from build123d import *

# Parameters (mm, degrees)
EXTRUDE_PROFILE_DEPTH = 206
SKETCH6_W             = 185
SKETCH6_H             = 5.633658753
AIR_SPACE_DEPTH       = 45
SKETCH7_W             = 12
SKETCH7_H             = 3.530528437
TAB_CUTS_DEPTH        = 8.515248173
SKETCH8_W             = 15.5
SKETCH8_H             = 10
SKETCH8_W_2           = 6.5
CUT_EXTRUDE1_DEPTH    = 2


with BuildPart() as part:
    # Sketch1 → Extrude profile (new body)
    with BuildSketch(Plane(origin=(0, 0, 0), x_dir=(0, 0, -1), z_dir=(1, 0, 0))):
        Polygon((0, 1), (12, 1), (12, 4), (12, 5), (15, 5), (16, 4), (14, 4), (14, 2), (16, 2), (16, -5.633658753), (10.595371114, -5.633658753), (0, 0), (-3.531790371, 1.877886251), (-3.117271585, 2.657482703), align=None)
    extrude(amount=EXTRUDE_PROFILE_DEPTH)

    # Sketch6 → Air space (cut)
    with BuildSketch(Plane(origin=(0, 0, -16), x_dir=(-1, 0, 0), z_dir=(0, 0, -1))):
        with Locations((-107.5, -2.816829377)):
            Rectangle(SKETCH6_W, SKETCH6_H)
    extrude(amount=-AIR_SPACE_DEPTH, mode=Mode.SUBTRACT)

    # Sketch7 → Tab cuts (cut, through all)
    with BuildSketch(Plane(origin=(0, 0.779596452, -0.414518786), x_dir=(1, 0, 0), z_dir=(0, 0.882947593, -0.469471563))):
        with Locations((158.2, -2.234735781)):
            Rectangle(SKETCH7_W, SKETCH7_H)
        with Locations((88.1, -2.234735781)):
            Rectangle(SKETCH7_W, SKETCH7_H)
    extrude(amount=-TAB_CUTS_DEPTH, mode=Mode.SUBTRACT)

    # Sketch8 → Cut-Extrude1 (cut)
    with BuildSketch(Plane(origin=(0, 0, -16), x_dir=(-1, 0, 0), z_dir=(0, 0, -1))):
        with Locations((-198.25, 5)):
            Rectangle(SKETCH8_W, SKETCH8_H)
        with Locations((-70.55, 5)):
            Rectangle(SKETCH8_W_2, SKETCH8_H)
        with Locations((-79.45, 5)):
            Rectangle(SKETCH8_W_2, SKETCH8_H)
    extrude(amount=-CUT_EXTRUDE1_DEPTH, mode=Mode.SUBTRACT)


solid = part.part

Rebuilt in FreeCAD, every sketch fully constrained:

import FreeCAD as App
import Part
import Sketcher

V = App.Vector
Q = App.Units.Quantity

doc = App.newDocument("Part")
body = doc.addObject("PartDesign::Body", "Body")

# Sketch on YZ plane
sketch1 = doc.addObject("Sketcher::SketchObject", "Sketch")
body.addObject(sketch1)
sketch1.AttachmentSupport = (doc.YZ_Plane, [""])
sketch1.MapMode = "FlatFace"
sketch1.addGeometry([
    Part.LineSegment(V(1, -12, 0), V(1, 0, 0)),  # 0
    Part.LineSegment(V(1, 0, 0), V(2.7, 3.1, 0)),  # 1
    Part.LineSegment(V(2.7, 3.1, 0), V(1.9, 3.5, 0)),  # 2
    Part.LineSegment(V(1.9, 3.5, 0), V(0, 0, 0)),  # 3
    Part.LineSegment(V(0, 0, 0), V(-5.6, -10.6, 0)),  # 4
    Part.LineSegment(V(-5.6, -10.6, 0), V(-5.6, -16, 0)),  # 5
    Part.LineSegment(V(-5.6, -16, 0), V(2, -16, 0)),  # 6
    Part.LineSegment(V(2, -16, 0), V(2, -14, 0)),  # 7
    Part.LineSegment(V(2, -14, 0), V(4, -14, 0)),  # 8
    Part.LineSegment(V(4, -14, 0), V(4, -16, 0)),  # 9
    Part.LineSegment(V(4, -16, 0), V(5, -15, 0)),  # 10
    Part.LineSegment(V(5, -15, 0), V(5, -12, 0)),  # 11
    Part.LineSegment(V(5, -12, 0), V(1, -12, 0)),  # 12
], False)
sketch1.addConstraint([
    Sketcher.Constraint("Coincident", 0, 2, 1, 1),
    Sketcher.Constraint("Coincident", 1, 2, 2, 1),
    Sketcher.Constraint("Coincident", 2, 2, 3, 1),
    Sketcher.Constraint("Coincident", 3, 2, 4, 1),
    Sketcher.Constraint("Coincident", 4, 2, 5, 1),
    Sketcher.Constraint("Coincident", 5, 2, 6, 1),
    Sketcher.Constraint("Coincident", 6, 2, 7, 1),
    Sketcher.Constraint("Coincident", 7, 2, 8, 1),
    Sketcher.Constraint("Coincident", 8, 2, 9, 1),
    Sketcher.Constraint("Coincident", 9, 2, 10, 1),
    Sketcher.Constraint("Coincident", 10, 2, 11, 1),
    Sketcher.Constraint("Coincident", 11, 2, 12, 1),
    Sketcher.Constraint("Coincident", 12, 2, 0, 1),
    Sketcher.Constraint("Vertical", 0),
    Sketcher.Constraint("Vertical", 5),
    Sketcher.Constraint("Horizontal", 6),
    Sketcher.Constraint("Vertical", 7),
    Sketcher.Constraint("Horizontal", 8),
    Sketcher.Constraint("Vertical", 9),
    Sketcher.Constraint("Vertical", 11),
    Sketcher.Constraint("Horizontal", 12),
    Sketcher.Constraint("Coincident", 3, 2, -1, 1),
    Sketcher.Constraint("PointOnObject", 0, 2, -1),
    Sketcher.Constraint("Perpendicular", 1, 2),
    Sketcher.Constraint("Perpendicular", 2, 3),
    Sketcher.Constraint("Parallel", 3, 4),
    Sketcher.Constraint("Horizontal", 6, 2, 9, 2),
    Sketcher.Constraint("Equal", 8, 7),
    Sketcher.Constraint("DistanceX", 8, 1, 8, 2, Q("2 mm")),
    Sketcher.Constraint("DistanceX", 12, 2, 12, 1, Q("4 mm")),
    Sketcher.Constraint("DistanceY", 0, 1, 0, 2, Q("12 mm")),
    Sketcher.Constraint("DistanceY", 11, 1, 11, 2, Q("3 mm")),
    Sketcher.Constraint("Angle", 1, Q("62 deg")),
    Sketcher.Constraint("Angle", 10, Q("45 deg")),
    Sketcher.Constraint("Distance", 3, Q("4 mm")),
    Sketcher.Constraint("Distance", 4, Q("12 mm")),
    Sketcher.Constraint("DistanceX", -1, 1, 0, 2, Q("1 mm")),
    Sketcher.Constraint("DistanceY", 5, 2, -1, 1, Q("16 mm")),
])
pad1 = doc.addObject("PartDesign::Pad", "Pad")
body.addObject(pad1)
pad1.Profile = sketch1
pad1.Length = 206

# Sketch on XY plane
sketch2 = doc.addObject("Sketcher::SketchObject", "Sketch001")
body.addObject(sketch2)
sketch2.AttachmentSupport = (doc.XY_Plane, [""])
sketch2.MapMode = "FlatFace"
sketch2.AttachmentOffset = App.Placement(V(0, 0, -16), App.Rotation())
sketch2.addGeometry([
    Part.LineSegment(V(200, 0, 0), V(200, -6, 0)),
    Part.LineSegment(V(200, -6, 0), V(15, -6, 0)),
    Part.LineSegment(V(15, -6, 0), V(15, 0, 0)),
    Part.LineSegment(V(15, 0, 0), V(200, 0, 0)),
], False)
sketch2.addConstraint([
    Sketcher.Constraint("Coincident", 0, 2, 1, 1),
    Sketcher.Constraint("Coincident", 1, 2, 2, 1),
    Sketcher.Constraint("Coincident", 2, 2, 3, 1),
    Sketcher.Constraint("Coincident", 3, 2, 0, 1),
    Sketcher.Constraint("Vertical", 0),
    Sketcher.Constraint("Horizontal", 1),
    Sketcher.Constraint("Vertical", 2),
    Sketcher.Constraint("Horizontal", 3),
    Sketcher.Constraint("PointOnObject", 2, 2, -1),
    Sketcher.Constraint("DistanceX", 1, 2, 1, 1, Q("185 mm")),
    Sketcher.Constraint("DistanceX", -1, 1, 0, 2, Q("200 mm")),
    Sketcher.Constraint("DistanceY", 0, 2, 0, 1, Q("5.633659 mm")),
])
pocket1 = doc.addObject("PartDesign::Pocket", "Pocket")
body.addObject(pocket1)
pocket1.Profile = sketch2
pocket1.Length = 45
pocket1.Reversed = True

# Sketch on an angled plane
sketch3 = doc.addObject("Sketcher::SketchObject", "Sketch002")
body.addObject(sketch3)
sketch3.Placement = App.Placement(V(0, 0.779596, -0.414519), App.Rotation(V(1, 0, 0), V(0, -0.469471563, -0.882947593), V(0, 0.882947593, -0.469471563), "ZXY"))
sketch3.addGeometry([
    Part.LineSegment(V(152.2, -0.5, 0), V(152.2, -4, 0)),  # 0
    Part.LineSegment(V(152.2, -4, 0), V(164.2, -4, 0)),  # 1
    Part.LineSegment(V(164.2, -4, 0), V(164.2, -0.5, 0)),  # 2
    Part.LineSegment(V(164.2, -0.5, 0), V(152.2, -0.5, 0)),  # 3
    Part.LineSegment(V(82.1, -0.5, 0), V(82.1, -4, 0)),  # 4
    Part.LineSegment(V(82.1, -4, 0), V(94.1, -4, 0)),  # 5
    Part.LineSegment(V(94.1, -4, 0), V(94.1, -0.5, 0)),  # 6
    Part.LineSegment(V(94.1, -0.5, 0), V(82.1, -0.5, 0)),  # 7
], False)
sketch3.addConstraint([
    Sketcher.Constraint("Coincident", 0, 2, 1, 1),
    Sketcher.Constraint("Coincident", 1, 2, 2, 1),
    Sketcher.Constraint("Coincident", 2, 2, 3, 1),
    Sketcher.Constraint("Coincident", 3, 2, 0, 1),
    Sketcher.Constraint("Coincident", 4, 2, 5, 1),
    Sketcher.Constraint("Coincident", 5, 2, 6, 1),
    Sketcher.Constraint("Coincident", 6, 2, 7, 1),
    Sketcher.Constraint("Coincident", 7, 2, 4, 1),
    Sketcher.Constraint("Vertical", 0),
    Sketcher.Constraint("Horizontal", 1),
    Sketcher.Constraint("Vertical", 2),
    Sketcher.Constraint("Horizontal", 3),
    Sketcher.Constraint("Vertical", 4),
    Sketcher.Constraint("Horizontal", 5),
    Sketcher.Constraint("Vertical", 6),
    Sketcher.Constraint("Horizontal", 7),
    Sketcher.Constraint("Horizontal", 1, 2, 4, 2),
    Sketcher.Constraint("Horizontal", 3, 2, 6, 2),
    Sketcher.Constraint("Equal", 3, 5),
    Sketcher.Constraint("DistanceX", 1, 1, 1, 2, Q("12 mm")),
    Sketcher.Constraint("DistanceY", 0, 2, -1, 1, Q("4 mm")),
    Sketcher.Constraint("DistanceX", -1, 1, 0, 2, Q("152.2 mm")),
    Sketcher.Constraint("DistanceX", -1, 1, 4, 2, Q("82.1 mm")),
    Sketcher.Constraint("DistanceY", 0, 2, 0, 1, Q("3.530528 mm")),
])
pocket2 = doc.addObject("PartDesign::Pocket", "Pocket001")
body.addObject(pocket2)
pocket2.Profile = sketch3
pocket2.Type = "ThroughAll"

# Sketch on XY plane
sketch4 = doc.addObject("Sketcher::SketchObject", "Sketch003")
body.addObject(sketch4)
sketch4.AttachmentSupport = (doc.XY_Plane, [""])
sketch4.MapMode = "FlatFace"
sketch4.AttachmentOffset = App.Placement(V(0, 0, -16), App.Rotation())
sketch4.addGeometry([
    Part.LineSegment(V(206, 10, 0), V(206, 0, 0)),  # 0
    Part.LineSegment(V(206, 0, 0), V(190, 0, 0)),  # 1
    Part.LineSegment(V(190, 0, 0), V(190, 10, 0)),  # 2
    Part.LineSegment(V(190, 10, 0), V(206, 10, 0)),  # 3
    Part.LineSegment(V(74, 10, 0), V(74, 0, 0)),  # 4
    Part.LineSegment(V(74, 0, 0), V(67, 0, 0)),  # 5
    Part.LineSegment(V(67, 0, 0), V(67, 10, 0)),  # 6
    Part.LineSegment(V(67, 10, 0), V(74, 10, 0)),  # 7
    Part.LineSegment(V(83, 10, 0), V(83, 0, 0)),  # 8
    Part.LineSegment(V(83, 0, 0), V(76, 0, 0)),  # 9
    Part.LineSegment(V(76, 0, 0), V(76, 10, 0)),  # 10
    Part.LineSegment(V(76, 10, 0), V(83, 10, 0)),  # 11
], False)
sketch4.addConstraint([
    Sketcher.Constraint("Coincident", 0, 2, 1, 1),
    Sketcher.Constraint("Coincident", 1, 2, 2, 1),
    Sketcher.Constraint("Coincident", 2, 2, 3, 1),
    Sketcher.Constraint("Coincident", 3, 2, 0, 1),
    Sketcher.Constraint("Coincident", 4, 2, 5, 1),
    Sketcher.Constraint("Coincident", 5, 2, 6, 1),
    Sketcher.Constraint("Coincident", 6, 2, 7, 1),
    Sketcher.Constraint("Coincident", 7, 2, 4, 1),
    Sketcher.Constraint("Coincident", 8, 2, 9, 1),
    Sketcher.Constraint("Coincident", 9, 2, 10, 1),
    Sketcher.Constraint("Coincident", 10, 2, 11, 1),
    Sketcher.Constraint("Coincident", 11, 2, 8, 1),
    Sketcher.Constraint("Vertical", 0),
    Sketcher.Constraint("Horizontal", 1),
    Sketcher.Constraint("Vertical", 2),
    Sketcher.Constraint("Horizontal", 3),
    Sketcher.Constraint("Vertical", 4),
    Sketcher.Constraint("Horizontal", 5),
    Sketcher.Constraint("Vertical", 6),
    Sketcher.Constraint("Horizontal", 7),
    Sketcher.Constraint("Vertical", 8),
    Sketcher.Constraint("Horizontal", 9),
    Sketcher.Constraint("Vertical", 10),
    Sketcher.Constraint("Horizontal", 11),
    Sketcher.Constraint("PointOnObject", 0, 2, -1),
    Sketcher.Constraint("PointOnObject", 4, 2, -1),
    Sketcher.Constraint("PointOnObject", 8, 2, -1),
    Sketcher.Constraint("Horizontal", 3, 2, 6, 2),
    Sketcher.Constraint("Horizontal", 7, 2, 10, 2),
    Sketcher.Constraint("Equal", 7, 9),
    Sketcher.Constraint("DistanceY", 0, 2, 0, 1, Q("10 mm")),
    Sketcher.Constraint("DistanceX", 1, 2, 1, 1, Q("15.5 mm")),
    Sketcher.Constraint("DistanceX", 5, 2, 5, 1, Q("6.5 mm")),
    Sketcher.Constraint("DistanceX", -1, 1, 0, 2, Q("206 mm")),
    Sketcher.Constraint("DistanceX", -1, 1, 4, 2, Q("73.8 mm")),
    Sketcher.Constraint("DistanceX", -1, 1, 8, 2, Q("82.7 mm")),
])
pocket3 = doc.addObject("PartDesign::Pocket", "Pocket002")
body.addObject(pocket3)
pocket3.Profile = sketch4
pocket3.Length = 2
pocket3.Reversed = True

doc.recompute()
